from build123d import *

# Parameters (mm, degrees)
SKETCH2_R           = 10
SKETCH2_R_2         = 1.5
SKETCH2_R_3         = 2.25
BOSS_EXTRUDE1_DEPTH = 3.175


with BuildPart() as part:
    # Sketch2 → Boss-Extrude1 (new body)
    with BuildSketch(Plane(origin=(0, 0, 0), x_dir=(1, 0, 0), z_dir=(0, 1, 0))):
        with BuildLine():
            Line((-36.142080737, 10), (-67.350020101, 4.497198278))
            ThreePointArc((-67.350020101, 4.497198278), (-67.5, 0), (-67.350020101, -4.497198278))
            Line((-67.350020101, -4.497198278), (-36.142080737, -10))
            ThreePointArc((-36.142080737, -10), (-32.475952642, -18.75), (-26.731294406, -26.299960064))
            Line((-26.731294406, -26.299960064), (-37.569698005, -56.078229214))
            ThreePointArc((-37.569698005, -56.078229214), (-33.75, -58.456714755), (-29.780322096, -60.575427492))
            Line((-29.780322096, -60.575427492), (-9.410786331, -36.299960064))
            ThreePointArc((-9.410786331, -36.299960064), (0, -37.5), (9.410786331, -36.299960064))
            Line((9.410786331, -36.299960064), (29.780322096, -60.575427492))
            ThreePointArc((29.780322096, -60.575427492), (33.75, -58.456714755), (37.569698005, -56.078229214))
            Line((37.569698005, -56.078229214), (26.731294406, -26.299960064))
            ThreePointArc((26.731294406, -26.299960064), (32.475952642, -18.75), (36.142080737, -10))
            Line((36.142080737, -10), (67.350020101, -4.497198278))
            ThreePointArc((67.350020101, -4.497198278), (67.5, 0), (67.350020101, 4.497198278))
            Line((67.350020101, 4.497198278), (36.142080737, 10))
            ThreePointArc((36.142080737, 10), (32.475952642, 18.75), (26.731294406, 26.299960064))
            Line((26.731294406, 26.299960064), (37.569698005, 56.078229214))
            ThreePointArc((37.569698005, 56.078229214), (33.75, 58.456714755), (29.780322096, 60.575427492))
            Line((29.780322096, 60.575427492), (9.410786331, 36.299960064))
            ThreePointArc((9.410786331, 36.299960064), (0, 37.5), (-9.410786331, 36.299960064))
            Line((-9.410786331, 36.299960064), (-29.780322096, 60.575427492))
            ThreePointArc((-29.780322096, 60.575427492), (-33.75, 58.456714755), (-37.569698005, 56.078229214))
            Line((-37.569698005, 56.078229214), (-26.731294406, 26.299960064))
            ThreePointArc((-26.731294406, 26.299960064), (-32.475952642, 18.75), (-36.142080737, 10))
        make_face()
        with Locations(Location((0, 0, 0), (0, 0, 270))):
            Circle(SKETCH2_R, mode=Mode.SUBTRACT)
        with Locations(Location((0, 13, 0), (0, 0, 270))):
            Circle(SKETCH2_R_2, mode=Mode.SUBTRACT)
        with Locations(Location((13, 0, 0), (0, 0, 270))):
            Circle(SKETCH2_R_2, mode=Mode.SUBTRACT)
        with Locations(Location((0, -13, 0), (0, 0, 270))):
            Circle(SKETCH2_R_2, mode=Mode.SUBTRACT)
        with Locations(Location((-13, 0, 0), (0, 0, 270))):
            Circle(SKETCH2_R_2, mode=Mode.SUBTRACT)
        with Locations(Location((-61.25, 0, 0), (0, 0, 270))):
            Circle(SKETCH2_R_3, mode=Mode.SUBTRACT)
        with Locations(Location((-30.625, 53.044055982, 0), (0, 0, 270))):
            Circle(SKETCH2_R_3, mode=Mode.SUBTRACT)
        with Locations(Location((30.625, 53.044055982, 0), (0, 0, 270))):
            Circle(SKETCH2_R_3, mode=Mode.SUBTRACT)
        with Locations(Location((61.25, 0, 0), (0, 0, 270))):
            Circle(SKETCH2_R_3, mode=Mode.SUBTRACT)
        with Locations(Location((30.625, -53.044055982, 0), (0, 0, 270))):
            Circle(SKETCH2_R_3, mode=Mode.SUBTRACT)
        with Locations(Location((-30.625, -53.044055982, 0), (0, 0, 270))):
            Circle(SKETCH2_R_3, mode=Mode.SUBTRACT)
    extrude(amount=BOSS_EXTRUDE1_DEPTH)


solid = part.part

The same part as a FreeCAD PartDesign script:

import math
import FreeCAD as App
import Part
import Sketcher
Q = App.Units.Quantity

doc = App.newDocument("Part")
body = doc.addObject("PartDesign::Body", "Body")

# Sketch on XZ plane
sketch1 = doc.addObject("Sketcher::SketchObject", "Sketch")
body.addObject(sketch1)
sketch1.AttachmentSupport = (doc.XZ_Plane, [""])
sketch1.MapMode = "FlatFace"
sketch1.addGeometry([
    Part.LineSegment(App.Vector(-36.142081, -10, 0), App.Vector(-67.35002, -4.497198, 0)),  # 0
    Part.ArcOfCircle(Part.Circle(App.Vector(0, 0, 0), App.Vector(0, 0, 1), 67.5), math.radians(176.17983), math.radians(183.82017)),  # 1
    Part.LineSegment(App.Vector(-67.35002, 4.497198, 0), App.Vector(-36.142081, 10, 0)),  # 2
    Part.ArcOfCircle(Part.Circle(App.Vector(0, 0, 0), App.Vector(0, 0, 1), 37.5), math.radians(135.46601), math.radians(164.53399)),  # 3
    Part.LineSegment(App.Vector(-26.731294, 26.29996, 0), App.Vector(-37.569698, 56.078229, 0)),  # 4
    Part.ArcOfCircle(Part.Circle(App.Vector(0, 0, 0), App.Vector(0, 0, 1), 67.5), math.radians(116.17983), math.radians(123.82017)),  # 5
    Part.LineSegment(App.Vector(-29.780322, 60.575427, 0), App.Vector(-9.410786, 36.29996, 0)),  # 6
    Part.ArcOfCircle(Part.Circle(App.Vector(0, 0, 0), App.Vector(0, 0, 1), 37.5), math.radians(75.46601), math.radians(104.53399)),  # 7
    Part.LineSegment(App.Vector(9.410786, 36.29996, 0), App.Vector(29.780322, 60.575427, 0)),  # 8
    Part.ArcOfCircle(Part.Circle(App.Vector(0, 0, 0), App.Vector(0, 0, 1), 67.5), math.radians(56.17983), math.radians(63.82017)),  # 9
    Part.LineSegment(App.Vector(37.569698, 56.078229, 0), App.Vector(26.731294, 26.29996, 0)),  # 10
    Part.ArcOfCircle(Part.Circle(App.Vector(0, 0, 0), App.Vector(0, 0, 1), 37.5), math.radians(15.46601), math.radians(44.53399)),  # 11
    Part.LineSegment(App.Vector(36.142081, 10, 0), App.Vector(67.35002, 4.497198, 0)),  # 12
    Part.ArcOfCircle(Part.Circle(App.Vector(0, 0, 0), App.Vector(0, 0, 1), 67.5), math.radians(-3.82017), math.radians(3.82017)),  # 13
    Part.LineSegment(App.Vector(67.35002, -4.497198, 0), App.Vector(36.142081, -10, 0)),  # 14
    Part.ArcOfCircle(Part.Circle(App.Vector(0, 0, 0), App.Vector(0, 0, 1), 37.5), math.radians(-44.53399), math.radians(-15.46601)),  # 15
    Part.LineSegment(App.Vector(26.731294, -26.29996, 0), App.Vector(37.569698, -56.078229, 0)),  # 16
    Part.ArcOfCircle(Part.Circle(App.Vector(0, 0, 0), App.Vector(0, 0, 1), 67.5), math.radians(-63.82017), math.radians(-56.17983)),  # 17
    Part.LineSegment(App.Vector(29.780322, -60.575427, 0), App.Vector(9.410786, -36.29996, 0)),  # 18
    Part.ArcOfCircle(Part.Circle(App.Vector(0, 0, 0), App.Vector(0, 0, 1), 37.5), math.radians(-104.53399), math.radians(-75.46601)),  # 19
    Part.LineSegment(App.Vector(-9.410786, -36.29996, 0), App.Vector(-29.780322, -60.575427, 0)),  # 20
    Part.ArcOfCircle(Part.Circle(App.Vector(0, 0, 0), App.Vector(0, 0, 1), 67.5), math.radians(-123.82017), math.radians(-116.17983)),  # 21
    Part.LineSegment(App.Vector(-37.569698, -56.078229, 0), App.Vector(-26.731294, -26.29996, 0)),  # 22
    Part.ArcOfCircle(Part.Circle(App.Vector(0, 0, 0), App.Vector(0, 0, 1), 37.5), math.radians(-164.53399), math.radians(-135.46601)),  # 23
    Part.Circle(App.Vector(-30.625, 53.044056, 0), App.Vector(0, 0, 1), 2.25),  # 24
    Part.Circle(App.Vector(30.625, 53.044056, 0), App.Vector(0, 0, 1), 2.25),  # 25
    Part.Circle(App.Vector(0, 13, 0), App.Vector(0, 0, 1), 1.5),  # 26
    Part.Circle(App.Vector(-61.25, 0, 0), App.Vector(0, 0, 1), 2.25),  # 27
    Part.Circle(App.Vector(-13, 0, 0), App.Vector(0, 0, 1), 1.5),  # 28
    Part.Circle(App.Vector(-30.625, -53.044056, 0), App.Vector(0, 0, 1), 2.25),  # 29
    Part.Circle(App.Vector(0, 0, 0), App.Vector(0, 0, 1), 10),  # 30
    Part.Circle(App.Vector(13, 0, 0), App.Vector(0, 0, 1), 1.5),  # 31
    Part.Circle(App.Vector(0, -13, 0), App.Vector(0, 0, 1), 1.5),  # 32
    Part.Circle(App.Vector(61.25, 0, 0), App.Vector(0, 0, 1), 2.25),  # 33
    Part.Circle(App.Vector(30.625, -53.044056, 0), App.Vector(0, 0, 1), 2.25),  # 34
], False)
sketch1.addConstraint([
    Sketcher.Constraint("Coincident", 0, 2, 1, 2),
    Sketcher.Constraint("Coincident", 1, 1, 2, 1),
    Sketcher.Constraint("Coincident", 2, 2, 3, 2),
    Sketcher.Constraint("Coincident", 3, 1, 4, 1),
    Sketcher.Constraint("Coincident", 4, 2, 5, 2),
    Sketcher.Constraint("Coincident", 5, 1, 6, 1),
    Sketcher.Constraint("Coincident", 6, 2, 7, 2),
    Sketcher.Constraint("Coincident", 7, 1, 8, 1),
    Sketcher.Constraint("Coincident", 8, 2, 9, 2),
    Sketcher.Constraint("Coincident", 9, 1, 10, 1),
    Sketcher.Constraint("Coincident", 10, 2, 11, 2),
    Sketcher.Constraint("Coincident", 11, 1, 12, 1),
    Sketcher.Constraint("Coincident", 12, 2, 13, 2),
    Sketcher.Constraint("Coincident", 13, 1, 14, 1),
    Sketcher.Constraint("Coincident", 14, 2, 15, 2),
    Sketcher.Constraint("Coincident", 15, 1, 16, 1),
    Sketcher.Constraint("Coincident", 16, 2, 17, 2),
    Sketcher.Constraint("Coincident", 17, 1, 18, 1),
    Sketcher.Constraint("Coincident", 18, 2, 19, 2),
    Sketcher.Constraint("Coincident", 19, 1, 20, 1),
    Sketcher.Constraint("Coincident", 20, 2, 21, 2),
    Sketcher.Constraint("Coincident", 21, 1, 22, 1),
    Sketcher.Constraint("Coincident", 22, 2, 23, 2),
    Sketcher.Constraint("Coincident", 23, 1, 0, 1),
    Sketcher.Constraint("Coincident", 1, 3, -1, 1),
    Sketcher.Constraint("Coincident", 3, 3, -1, 1),
    Sketcher.Constraint("Coincident", 5, 3, -1, 1),
    Sketcher.Constraint("Coincident", 7, 3, -1, 1),
    Sketcher.Constraint("Coincident", 9, 3, -1, 1),
    Sketcher.Constraint("Coincident", 11, 3, -1, 1),
    Sketcher.Constraint("Coincident", 13, 3, -1, 1),
    Sketcher.Constraint("Coincident", 15, 3, -1, 1),
    Sketcher.Constraint("Coincident", 17, 3, -1, 1),
    Sketcher.Constraint("Coincident", 19, 3, -1, 1),
    Sketcher.Constraint("Coincident", 21, 3, -1, 1),
    Sketcher.Constraint("Coincident", 23, 3, -1, 1),
    Sketcher.Constraint("Coincident", 30, 3, -1, 1),
    Sketcher.Constraint("Equal", 1, 5),
    Sketcher.Constraint("Equal", 3, 7),
    Sketcher.Constraint("Equal", 5, 9),
    Sketcher.Constraint("Equal", 7, 11),
    Sketcher.Constraint("Equal", 9, 13),
    Sketcher.Constraint("Equal", 11, 15),
    Sketcher.Constraint("Equal", 13, 17),
    Sketcher.Constraint("Equal", 15, 19),
    Sketcher.Constraint("Equal", 17, 21),
    Sketcher.Constraint("Equal", 19, 23),
    Sketcher.Constraint("Equal", 24, 25),
    Sketcher.Constraint("Equal", 25, 27),
    Sketcher.Constraint("Equal", 26, 28),
    Sketcher.Constraint("Equal", 27, 29),
    Sketcher.Constraint("Equal", 28, 31),
    Sketcher.Constraint("Equal", 31, 32),
    Sketcher.Constraint("Equal", 29, 33),
    Sketcher.Constraint("Equal", 33, 34),
    Sketcher.Constraint("Symmetric", 25, 3, 29, 3, -1, 1),
    Sketcher.Constraint("Symmetric", 28, 3, 31, 3, -1, 1),
    Sketcher.Constraint("Symmetric", 26, 3, 32, 3, -1, 1),
    Sketcher.Constraint("Symmetric", 27, 3, 33, 3, -1, 1),
    Sketcher.Constraint("Symmetric", 24, 3, 34, 3, -1, 1),
    Sketcher.Constraint("Symmetric", 24, 3, 25, 3, -2),
    Sketcher.Constraint("PointOnObject", 26, 3, -2),
    Sketcher.Constraint("PointOnObject", 27, 3, -1),
    Sketcher.Constraint("PointOnObject", 28, 3, -1),
    Sketcher.Constraint("Parallel", 0, 12),
    Sketcher.Constraint("Parallel", 2, 14),
    Sketcher.Constraint("Parallel", 4, 16),
    Sketcher.Constraint("Parallel", 6, 18),
    Sketcher.Constraint("Parallel", 8, 20),
    Sketcher.Constraint("Parallel", 10, 22),
    Sketcher.Constraint("Horizontal", 6, 2, 7, 1),
    Sketcher.Constraint("Horizontal", 5, 1, 8, 2),
    Sketcher.Constraint("Horizontal", 4, 2, 9, 1),
    Sketcher.Constraint("Horizontal", 3, 1, 10, 2),
    Sketcher.Constraint("Horizontal", 2, 2, 11, 1),
    Sketcher.Constraint("Horizontal", 1, 1, 12, 2),
    Sketcher.Constraint("Horizontal", 0, 2, 13, 1),
    Sketcher.Constraint("Horizontal", 18, 2, 19, 1),
    Sketcher.Constraint("Horizontal", 16, 2, 21, 1),
    Sketcher.Constraint("Vertical", 0, 2, 1, 1),
    Sketcher.Constraint("Vertical", 10, 2, 15, 1),
    Sketcher.Constraint("Vertical", 8, 2, 17, 1),
    Sketcher.Constraint("Equal", 2, 4),
    Sketcher.Constraint("Equal", 4, 6),
    Sketcher.Constraint("Diameter", 26, 3.0),
    Sketcher.Constraint("Diameter", 30, 20.0),
    Sketcher.Constraint("Diameter", 24, 4.5),
    Sketcher.Constraint("Radius", 1, 67.5),
    Sketcher.Constraint("Radius", 3, 37.5),
    Sketcher.Constraint("Angle", 0, Q("170 deg")),
    Sketcher.Constraint("Angle", 4, Q("110 deg")),
    Sketcher.Constraint("Angle", 6, Q("-50 deg")),
    Sketcher.Constraint("DistanceY", -1, 1, 26, 3, 13.0),
    Sketcher.Constraint("DistanceX", 28, 3, -1, 1, 13.0),
    Sketcher.Constraint("DistanceY", -1, 1, 2, 2, 10.0),
    Sketcher.Constraint("DistanceX", 27, 3, -1, 1, 61.25),
    Sketcher.Constraint("DistanceX", 24, 3, -1, 1, 30.625),
    Sketcher.Constraint("DistanceY", 24, 3, 5, 1, 7.531372),
])
pad1 = doc.addObject("PartDesign::Pad", "Pad")
body.addObject(pad1)
pad1.Profile = sketch1
pad1.Length = 3.175
pad1.Reversed = True

doc.recompute()
